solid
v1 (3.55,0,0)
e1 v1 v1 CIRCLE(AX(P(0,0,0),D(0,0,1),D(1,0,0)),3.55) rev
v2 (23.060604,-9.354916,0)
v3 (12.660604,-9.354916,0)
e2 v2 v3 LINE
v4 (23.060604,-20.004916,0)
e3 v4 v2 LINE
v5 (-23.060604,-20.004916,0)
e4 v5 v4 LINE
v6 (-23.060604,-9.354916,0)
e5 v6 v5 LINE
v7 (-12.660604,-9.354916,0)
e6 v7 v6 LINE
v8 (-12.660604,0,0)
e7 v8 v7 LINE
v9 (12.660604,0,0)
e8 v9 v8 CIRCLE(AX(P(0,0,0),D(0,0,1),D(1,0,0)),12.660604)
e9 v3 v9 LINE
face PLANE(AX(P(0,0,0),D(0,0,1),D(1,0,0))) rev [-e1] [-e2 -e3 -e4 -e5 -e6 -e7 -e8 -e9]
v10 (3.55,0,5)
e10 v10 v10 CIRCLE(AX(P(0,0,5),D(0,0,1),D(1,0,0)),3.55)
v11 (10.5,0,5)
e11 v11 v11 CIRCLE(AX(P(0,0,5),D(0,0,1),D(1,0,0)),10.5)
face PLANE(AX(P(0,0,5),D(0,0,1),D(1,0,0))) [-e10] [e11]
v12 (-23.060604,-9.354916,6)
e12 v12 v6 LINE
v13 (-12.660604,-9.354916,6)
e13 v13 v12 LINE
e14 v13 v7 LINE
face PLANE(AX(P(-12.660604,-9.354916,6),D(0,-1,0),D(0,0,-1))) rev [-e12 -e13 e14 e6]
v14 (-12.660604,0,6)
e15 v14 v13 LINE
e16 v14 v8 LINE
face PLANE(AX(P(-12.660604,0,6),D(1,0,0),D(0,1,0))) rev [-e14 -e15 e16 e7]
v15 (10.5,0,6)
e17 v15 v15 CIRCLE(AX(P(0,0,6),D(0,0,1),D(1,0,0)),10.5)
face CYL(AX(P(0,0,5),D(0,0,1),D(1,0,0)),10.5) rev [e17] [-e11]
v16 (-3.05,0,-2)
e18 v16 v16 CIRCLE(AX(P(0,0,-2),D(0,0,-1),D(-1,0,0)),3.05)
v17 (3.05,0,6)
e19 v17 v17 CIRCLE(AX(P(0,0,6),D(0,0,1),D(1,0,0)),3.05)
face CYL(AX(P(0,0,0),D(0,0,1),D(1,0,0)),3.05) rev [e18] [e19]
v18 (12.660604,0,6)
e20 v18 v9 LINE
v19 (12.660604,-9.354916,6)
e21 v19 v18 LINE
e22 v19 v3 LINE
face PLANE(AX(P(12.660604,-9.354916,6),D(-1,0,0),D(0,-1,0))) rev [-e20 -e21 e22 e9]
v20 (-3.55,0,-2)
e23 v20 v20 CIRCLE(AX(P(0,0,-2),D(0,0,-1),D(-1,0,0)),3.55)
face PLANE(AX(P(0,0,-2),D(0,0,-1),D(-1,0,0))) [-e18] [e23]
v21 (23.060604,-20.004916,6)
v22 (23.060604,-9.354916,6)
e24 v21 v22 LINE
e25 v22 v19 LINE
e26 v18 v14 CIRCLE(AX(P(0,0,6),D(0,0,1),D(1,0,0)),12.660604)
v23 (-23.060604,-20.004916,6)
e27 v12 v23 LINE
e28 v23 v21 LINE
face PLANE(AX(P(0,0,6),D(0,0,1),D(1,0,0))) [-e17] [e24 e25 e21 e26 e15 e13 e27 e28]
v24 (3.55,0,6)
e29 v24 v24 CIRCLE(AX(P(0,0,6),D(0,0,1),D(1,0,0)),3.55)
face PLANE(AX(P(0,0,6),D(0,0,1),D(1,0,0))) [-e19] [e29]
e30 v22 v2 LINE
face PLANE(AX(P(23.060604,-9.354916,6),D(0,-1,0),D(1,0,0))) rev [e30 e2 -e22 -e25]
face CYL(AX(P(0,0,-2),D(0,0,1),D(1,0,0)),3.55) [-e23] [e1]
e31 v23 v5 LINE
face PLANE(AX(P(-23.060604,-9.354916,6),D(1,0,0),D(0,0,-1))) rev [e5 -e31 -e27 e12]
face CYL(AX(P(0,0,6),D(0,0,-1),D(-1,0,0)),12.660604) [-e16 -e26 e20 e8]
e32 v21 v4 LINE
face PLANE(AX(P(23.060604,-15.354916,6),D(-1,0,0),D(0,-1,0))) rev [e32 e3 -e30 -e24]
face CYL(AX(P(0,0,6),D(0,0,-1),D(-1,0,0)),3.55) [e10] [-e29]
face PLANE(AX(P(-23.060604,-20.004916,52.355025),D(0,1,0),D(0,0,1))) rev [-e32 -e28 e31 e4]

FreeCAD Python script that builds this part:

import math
import FreeCAD as App
import Part
import Sketcher

V = App.Vector
Q = App.Units.Quantity


def add_polygon(sketch, points):
    """Adds a closed chain of lines whose ends are joined by coincident constraints."""
    first, n = sketch.GeometryCount, len(points)
    for a, b in zip(points, points[1:] + points[:1]):
        sketch.addGeometry(Part.LineSegment(App.Vector(*a, 0), App.Vector(*b, 0)), False)
    for i in range(n):
        sketch.addConstraint(Sketcher.Constraint("Coincident", first + i, 2, first + (i + 1) % n, 1))

doc = App.newDocument("Part")
body = doc.addObject("PartDesign::Body", "Body")

# Sketch on XY plane
sketch1 = body.newObject("Sketcher::SketchObject", "Sketch")
sketch1.AttachmentSupport = (doc.getObject("XY_Plane"), [""])
sketch1.MapMode = "FlatFace"
sketch1.addGeometry([
    Part.Circle(V(0, 0, 0), V(0, 0, 1), 11),
    Part.Circle(V(0, 0, 0), V(0, 0, 1), 3),
], False)
sketch1.addConstraint([
    Sketcher.Constraint("Coincident", 0, 3, -1, 1),
    Sketcher.Constraint("Coincident", 1, 3, -1, 1),
    Sketcher.Constraint("Diameter", 0, Q("22 mm")),
    Sketcher.Constraint("Diameter", 1, Q("6 mm")),
])
pad1 = body.newObject("PartDesign::Pad", "Pad")
pad1.Profile = sketch1
pad1.Length = 6

# Sketch on XY plane
sketch2 = body.newObject("Sketcher::SketchObject", "Sketch001")
sketch2.AttachmentSupport = (doc.getObject("XY_Plane"), [""])
sketch2.MapMode = "FlatFace"
sketch2.AttachmentOffset = App.Placement(V(0, 0, 6), App.Rotation())
sketch2.addGeometry(Part.Circle(V(0, 0, 0), V(0, 0, 1), 10.5), False)
sketch2.addConstraint([
    Sketcher.Constraint("Coincident", 0, 3, -1, 1),
    Sketcher.Constraint("Diameter", 0, Q("21 mm")),
])
pocket1 = body.newObject("PartDesign::Pocket", "Pocket")
pocket1.Profile = sketch2
pocket1.Length = 1

# Sketch on XY plane
sketch3 = body.newObject("Sketcher::SketchObject", "Sketch002")
sketch3.AttachmentSupport = (doc.getObject("XY_Plane"), [""])
sketch3.MapMode = "FlatFace"
sketch3.AttachmentOffset = App.Placement(V(0, 0, 5), App.Rotation())
sketch3.addGeometry(Part.Circle(V(0, 0, 0), V(0, 0, 1), 3.55), False)
sketch3.addConstraint([
    Sketcher.Constraint("Coincident", 0, 3, -1, 1),
    Sketcher.Constraint("Diameter", 0, Q("7.1 mm")),
])
pad2 = body.newObject("PartDesign::Pad", "Pad001")
pad2.Profile = sketch3
pad2.Length = 1

# Sketch on XY plane
sketch4 = body.newObject("Sketcher::SketchObject", "Sketch003")
sketch4.AttachmentSupport = (doc.getObject("XY_Plane"), [""])
sketch4.MapMode = "FlatFace"
sketch4.AttachmentOffset = App.Placement(V(0, 0, 6), App.Rotation())
sketch4.addGeometry(Part.Circle(V(0, 0, 0), V(0, 0, 1), 3.05), False)
sketch4.addConstraint([
    Sketcher.Constraint("Coincident", 0, 3, -1, 1),
    Sketcher.Constraint("Diameter", 0, Q("6.1 mm")),
])
pocket2 = body.newObject("PartDesign::Pocket", "Pocket001")
pocket2.Profile = sketch4
pocket2.Type = "ThroughAll"

# Sketch on XY plane
sketch5 = body.newObject("Sketcher::SketchObject", "Sketch004")
sketch5.AttachmentSupport = (doc.getObject("XY_Plane"), [""])
sketch5.MapMode = "FlatFace"
sketch5.AttachmentOffset = App.Placement(V(0, 0, -2), App.Rotation())
sketch5.addGeometry(Part.Circle(V(0, 0, 0), V(0, 0, 1), 3.55), False)
sketch5.addConstraint([
    Sketcher.Constraint("Coincident", 0, 3, -1, 1),
    Sketcher.Constraint("Diameter", 0, Q("7.1 mm")),
])
pad3 = body.newObject("PartDesign::Pad", "Pad002")
pad3.Profile = sketch5
pad3.Length = 2

# Sketch on XY plane
sketch6 = body.newObject("Sketcher::SketchObject", "Sketch005")
sketch6.AttachmentSupport = (doc.getObject("XY_Plane"), [""])
sketch6.MapMode = "FlatFace"
sketch6.AttachmentOffset = App.Placement(V(0, 0, -2), App.Rotation())
sketch6.addGeometry(Part.Circle(V(0, 0, 0), V(0, 0, 1), 3.05), False)
sketch6.addConstraint([
    Sketcher.Constraint("Coincident", 0, 3, -1, 1),
    Sketcher.Constraint("Diameter", 0, Q("6.1 mm")),
])
pocket3 = body.newObject("PartDesign::Pocket", "Pocket002")
pocket3.Profile = sketch6
pocket3.Type = "ThroughAll"
pocket3.Reversed = True

# Sketch on XY plane
sketch7 = body.newObject("Sketcher::SketchObject", "Sketch006")
sketch7.AttachmentSupport = (doc.getObject("XY_Plane"), [""])
sketch7.MapMode = "FlatFace"
sketch7.addGeometry([
    Part.LineSegment(V(-12.660604, 0, 0), V(-12.660604, -9.354916, 0)),  # 0
    Part.LineSegment(V(-12.660604, -9.354916, 0), V(-23.060604, -9.354916, 0)),  # 1
    Part.LineSegment(V(-23.060604, -9.354916, 0), V(-23.060604, -15.354916, 0)),  # 2
    Part.LineSegment(V(-23.060604, -15.354916, 0), V(23.060604, -15.354916, 0)),  # 3
    Part.LineSegment(V(23.060604, -15.354916, 0), V(23.060604, -9.354916, 0)),  # 4
    Part.LineSegment(V(23.060604, -9.354916, 0), V(12.660604, -9.354916, 0)),  # 5
    Part.LineSegment(V(12.660604, -9.354916, 0), V(12.660604, 0, 0)),  # 6
    Part.ArcOfCircle(Part.Circle(V(0, 0, 0), V(0, 0, 1), 12.660604), math.radians(0), math.radians(180)),  # 7
    Part.Circle(V(0, 0, 0), V(0, 0, 1), 11),  # 8
], False)
sketch7.addConstraint([
    Sketcher.Constraint("Coincident", 0, 2, 1, 1),
    Sketcher.Constraint("Coincident", 1, 2, 2, 1),
    Sketcher.Constraint("Coincident", 2, 2, 3, 1),
    Sketcher.Constraint("Coincident", 3, 2, 4, 1),
    Sketcher.Constraint("Coincident", 4, 2, 5, 1),
    Sketcher.Constraint("Coincident", 5, 2, 6, 1),
    Sketcher.Constraint("Tangent", 6, 2, 7, 1),
    Sketcher.Constraint("Tangent", 7, 2, 0, 1),
    Sketcher.Constraint("Vertical", 0),
    Sketcher.Constraint("Horizontal", 1),
    Sketcher.Constraint("Vertical", 2),
    Sketcher.Constraint("Horizontal", 3),
    Sketcher.Constraint("Vertical", 4),
    Sketcher.Constraint("Horizontal", 5),
    Sketcher.Constraint("Vertical", 6),
    Sketcher.Constraint("Coincident", 7, 3, -1, 1),
    Sketcher.Constraint("Coincident", 8, 3, -1, 1),
    Sketcher.Constraint("Symmetric", 1, 2, 4, 2, -2),
    Sketcher.Constraint("Diameter", 8, Q("22 mm")),
    Sketcher.Constraint("DistanceY", 2, 2, 2, 1, Q("6 mm")),
    Sketcher.Constraint("DistanceX", 1, 2, 1, 1, Q("10.4 mm")),
    Sketcher.Constraint("Radius", 7, Q("12.660604 mm")),
    Sketcher.Constraint("DistanceY", 0, 2, 0, 1, Q("9.354916 mm")),
])
pad4 = body.newObject("PartDesign::Pad", "Pad003")
pad4.Profile = sketch7
pad4.Length = 6

# Sketch on XY plane
sketch8 = body.newObject("Sketcher::SketchObject", "Sketch007")
sketch8.AttachmentSupport = (doc.getObject("XY_Plane"), [""])
sketch8.MapMode = "FlatFace"
add_polygon(sketch8, [(-23.060604, -15.354916), (-23.060604, -20.004916), (23.060604, -20.004916), (23.060604, -15.354916)])  # lines 0-3
sketch8.addConstraint([
    Sketcher.Constraint("Vertical", 0),
    Sketcher.Constraint("Horizontal", 1),
    Sketcher.Constraint("Vertical", 2),
    Sketcher.Constraint("Horizontal", 3),
    Sketcher.Constraint("DistanceY", 0, 2, 0, 1, Q("4.65 mm")),
    Sketcher.Constraint("DistanceX", 1, 1, 1, 2, Q("46.121208 mm")),
    Sketcher.Constraint("DistanceX", 0, 2, -1, 1, Q("23.060604 mm")),
    Sketcher.Constraint("DistanceY", 0, 2, -1, 1, Q("20.004916 mm")),
])
pad5 = body.newObject("PartDesign::Pad", "Pad004")
pad5.Profile = sketch8
pad5.Length = 6

doc.recompute()
